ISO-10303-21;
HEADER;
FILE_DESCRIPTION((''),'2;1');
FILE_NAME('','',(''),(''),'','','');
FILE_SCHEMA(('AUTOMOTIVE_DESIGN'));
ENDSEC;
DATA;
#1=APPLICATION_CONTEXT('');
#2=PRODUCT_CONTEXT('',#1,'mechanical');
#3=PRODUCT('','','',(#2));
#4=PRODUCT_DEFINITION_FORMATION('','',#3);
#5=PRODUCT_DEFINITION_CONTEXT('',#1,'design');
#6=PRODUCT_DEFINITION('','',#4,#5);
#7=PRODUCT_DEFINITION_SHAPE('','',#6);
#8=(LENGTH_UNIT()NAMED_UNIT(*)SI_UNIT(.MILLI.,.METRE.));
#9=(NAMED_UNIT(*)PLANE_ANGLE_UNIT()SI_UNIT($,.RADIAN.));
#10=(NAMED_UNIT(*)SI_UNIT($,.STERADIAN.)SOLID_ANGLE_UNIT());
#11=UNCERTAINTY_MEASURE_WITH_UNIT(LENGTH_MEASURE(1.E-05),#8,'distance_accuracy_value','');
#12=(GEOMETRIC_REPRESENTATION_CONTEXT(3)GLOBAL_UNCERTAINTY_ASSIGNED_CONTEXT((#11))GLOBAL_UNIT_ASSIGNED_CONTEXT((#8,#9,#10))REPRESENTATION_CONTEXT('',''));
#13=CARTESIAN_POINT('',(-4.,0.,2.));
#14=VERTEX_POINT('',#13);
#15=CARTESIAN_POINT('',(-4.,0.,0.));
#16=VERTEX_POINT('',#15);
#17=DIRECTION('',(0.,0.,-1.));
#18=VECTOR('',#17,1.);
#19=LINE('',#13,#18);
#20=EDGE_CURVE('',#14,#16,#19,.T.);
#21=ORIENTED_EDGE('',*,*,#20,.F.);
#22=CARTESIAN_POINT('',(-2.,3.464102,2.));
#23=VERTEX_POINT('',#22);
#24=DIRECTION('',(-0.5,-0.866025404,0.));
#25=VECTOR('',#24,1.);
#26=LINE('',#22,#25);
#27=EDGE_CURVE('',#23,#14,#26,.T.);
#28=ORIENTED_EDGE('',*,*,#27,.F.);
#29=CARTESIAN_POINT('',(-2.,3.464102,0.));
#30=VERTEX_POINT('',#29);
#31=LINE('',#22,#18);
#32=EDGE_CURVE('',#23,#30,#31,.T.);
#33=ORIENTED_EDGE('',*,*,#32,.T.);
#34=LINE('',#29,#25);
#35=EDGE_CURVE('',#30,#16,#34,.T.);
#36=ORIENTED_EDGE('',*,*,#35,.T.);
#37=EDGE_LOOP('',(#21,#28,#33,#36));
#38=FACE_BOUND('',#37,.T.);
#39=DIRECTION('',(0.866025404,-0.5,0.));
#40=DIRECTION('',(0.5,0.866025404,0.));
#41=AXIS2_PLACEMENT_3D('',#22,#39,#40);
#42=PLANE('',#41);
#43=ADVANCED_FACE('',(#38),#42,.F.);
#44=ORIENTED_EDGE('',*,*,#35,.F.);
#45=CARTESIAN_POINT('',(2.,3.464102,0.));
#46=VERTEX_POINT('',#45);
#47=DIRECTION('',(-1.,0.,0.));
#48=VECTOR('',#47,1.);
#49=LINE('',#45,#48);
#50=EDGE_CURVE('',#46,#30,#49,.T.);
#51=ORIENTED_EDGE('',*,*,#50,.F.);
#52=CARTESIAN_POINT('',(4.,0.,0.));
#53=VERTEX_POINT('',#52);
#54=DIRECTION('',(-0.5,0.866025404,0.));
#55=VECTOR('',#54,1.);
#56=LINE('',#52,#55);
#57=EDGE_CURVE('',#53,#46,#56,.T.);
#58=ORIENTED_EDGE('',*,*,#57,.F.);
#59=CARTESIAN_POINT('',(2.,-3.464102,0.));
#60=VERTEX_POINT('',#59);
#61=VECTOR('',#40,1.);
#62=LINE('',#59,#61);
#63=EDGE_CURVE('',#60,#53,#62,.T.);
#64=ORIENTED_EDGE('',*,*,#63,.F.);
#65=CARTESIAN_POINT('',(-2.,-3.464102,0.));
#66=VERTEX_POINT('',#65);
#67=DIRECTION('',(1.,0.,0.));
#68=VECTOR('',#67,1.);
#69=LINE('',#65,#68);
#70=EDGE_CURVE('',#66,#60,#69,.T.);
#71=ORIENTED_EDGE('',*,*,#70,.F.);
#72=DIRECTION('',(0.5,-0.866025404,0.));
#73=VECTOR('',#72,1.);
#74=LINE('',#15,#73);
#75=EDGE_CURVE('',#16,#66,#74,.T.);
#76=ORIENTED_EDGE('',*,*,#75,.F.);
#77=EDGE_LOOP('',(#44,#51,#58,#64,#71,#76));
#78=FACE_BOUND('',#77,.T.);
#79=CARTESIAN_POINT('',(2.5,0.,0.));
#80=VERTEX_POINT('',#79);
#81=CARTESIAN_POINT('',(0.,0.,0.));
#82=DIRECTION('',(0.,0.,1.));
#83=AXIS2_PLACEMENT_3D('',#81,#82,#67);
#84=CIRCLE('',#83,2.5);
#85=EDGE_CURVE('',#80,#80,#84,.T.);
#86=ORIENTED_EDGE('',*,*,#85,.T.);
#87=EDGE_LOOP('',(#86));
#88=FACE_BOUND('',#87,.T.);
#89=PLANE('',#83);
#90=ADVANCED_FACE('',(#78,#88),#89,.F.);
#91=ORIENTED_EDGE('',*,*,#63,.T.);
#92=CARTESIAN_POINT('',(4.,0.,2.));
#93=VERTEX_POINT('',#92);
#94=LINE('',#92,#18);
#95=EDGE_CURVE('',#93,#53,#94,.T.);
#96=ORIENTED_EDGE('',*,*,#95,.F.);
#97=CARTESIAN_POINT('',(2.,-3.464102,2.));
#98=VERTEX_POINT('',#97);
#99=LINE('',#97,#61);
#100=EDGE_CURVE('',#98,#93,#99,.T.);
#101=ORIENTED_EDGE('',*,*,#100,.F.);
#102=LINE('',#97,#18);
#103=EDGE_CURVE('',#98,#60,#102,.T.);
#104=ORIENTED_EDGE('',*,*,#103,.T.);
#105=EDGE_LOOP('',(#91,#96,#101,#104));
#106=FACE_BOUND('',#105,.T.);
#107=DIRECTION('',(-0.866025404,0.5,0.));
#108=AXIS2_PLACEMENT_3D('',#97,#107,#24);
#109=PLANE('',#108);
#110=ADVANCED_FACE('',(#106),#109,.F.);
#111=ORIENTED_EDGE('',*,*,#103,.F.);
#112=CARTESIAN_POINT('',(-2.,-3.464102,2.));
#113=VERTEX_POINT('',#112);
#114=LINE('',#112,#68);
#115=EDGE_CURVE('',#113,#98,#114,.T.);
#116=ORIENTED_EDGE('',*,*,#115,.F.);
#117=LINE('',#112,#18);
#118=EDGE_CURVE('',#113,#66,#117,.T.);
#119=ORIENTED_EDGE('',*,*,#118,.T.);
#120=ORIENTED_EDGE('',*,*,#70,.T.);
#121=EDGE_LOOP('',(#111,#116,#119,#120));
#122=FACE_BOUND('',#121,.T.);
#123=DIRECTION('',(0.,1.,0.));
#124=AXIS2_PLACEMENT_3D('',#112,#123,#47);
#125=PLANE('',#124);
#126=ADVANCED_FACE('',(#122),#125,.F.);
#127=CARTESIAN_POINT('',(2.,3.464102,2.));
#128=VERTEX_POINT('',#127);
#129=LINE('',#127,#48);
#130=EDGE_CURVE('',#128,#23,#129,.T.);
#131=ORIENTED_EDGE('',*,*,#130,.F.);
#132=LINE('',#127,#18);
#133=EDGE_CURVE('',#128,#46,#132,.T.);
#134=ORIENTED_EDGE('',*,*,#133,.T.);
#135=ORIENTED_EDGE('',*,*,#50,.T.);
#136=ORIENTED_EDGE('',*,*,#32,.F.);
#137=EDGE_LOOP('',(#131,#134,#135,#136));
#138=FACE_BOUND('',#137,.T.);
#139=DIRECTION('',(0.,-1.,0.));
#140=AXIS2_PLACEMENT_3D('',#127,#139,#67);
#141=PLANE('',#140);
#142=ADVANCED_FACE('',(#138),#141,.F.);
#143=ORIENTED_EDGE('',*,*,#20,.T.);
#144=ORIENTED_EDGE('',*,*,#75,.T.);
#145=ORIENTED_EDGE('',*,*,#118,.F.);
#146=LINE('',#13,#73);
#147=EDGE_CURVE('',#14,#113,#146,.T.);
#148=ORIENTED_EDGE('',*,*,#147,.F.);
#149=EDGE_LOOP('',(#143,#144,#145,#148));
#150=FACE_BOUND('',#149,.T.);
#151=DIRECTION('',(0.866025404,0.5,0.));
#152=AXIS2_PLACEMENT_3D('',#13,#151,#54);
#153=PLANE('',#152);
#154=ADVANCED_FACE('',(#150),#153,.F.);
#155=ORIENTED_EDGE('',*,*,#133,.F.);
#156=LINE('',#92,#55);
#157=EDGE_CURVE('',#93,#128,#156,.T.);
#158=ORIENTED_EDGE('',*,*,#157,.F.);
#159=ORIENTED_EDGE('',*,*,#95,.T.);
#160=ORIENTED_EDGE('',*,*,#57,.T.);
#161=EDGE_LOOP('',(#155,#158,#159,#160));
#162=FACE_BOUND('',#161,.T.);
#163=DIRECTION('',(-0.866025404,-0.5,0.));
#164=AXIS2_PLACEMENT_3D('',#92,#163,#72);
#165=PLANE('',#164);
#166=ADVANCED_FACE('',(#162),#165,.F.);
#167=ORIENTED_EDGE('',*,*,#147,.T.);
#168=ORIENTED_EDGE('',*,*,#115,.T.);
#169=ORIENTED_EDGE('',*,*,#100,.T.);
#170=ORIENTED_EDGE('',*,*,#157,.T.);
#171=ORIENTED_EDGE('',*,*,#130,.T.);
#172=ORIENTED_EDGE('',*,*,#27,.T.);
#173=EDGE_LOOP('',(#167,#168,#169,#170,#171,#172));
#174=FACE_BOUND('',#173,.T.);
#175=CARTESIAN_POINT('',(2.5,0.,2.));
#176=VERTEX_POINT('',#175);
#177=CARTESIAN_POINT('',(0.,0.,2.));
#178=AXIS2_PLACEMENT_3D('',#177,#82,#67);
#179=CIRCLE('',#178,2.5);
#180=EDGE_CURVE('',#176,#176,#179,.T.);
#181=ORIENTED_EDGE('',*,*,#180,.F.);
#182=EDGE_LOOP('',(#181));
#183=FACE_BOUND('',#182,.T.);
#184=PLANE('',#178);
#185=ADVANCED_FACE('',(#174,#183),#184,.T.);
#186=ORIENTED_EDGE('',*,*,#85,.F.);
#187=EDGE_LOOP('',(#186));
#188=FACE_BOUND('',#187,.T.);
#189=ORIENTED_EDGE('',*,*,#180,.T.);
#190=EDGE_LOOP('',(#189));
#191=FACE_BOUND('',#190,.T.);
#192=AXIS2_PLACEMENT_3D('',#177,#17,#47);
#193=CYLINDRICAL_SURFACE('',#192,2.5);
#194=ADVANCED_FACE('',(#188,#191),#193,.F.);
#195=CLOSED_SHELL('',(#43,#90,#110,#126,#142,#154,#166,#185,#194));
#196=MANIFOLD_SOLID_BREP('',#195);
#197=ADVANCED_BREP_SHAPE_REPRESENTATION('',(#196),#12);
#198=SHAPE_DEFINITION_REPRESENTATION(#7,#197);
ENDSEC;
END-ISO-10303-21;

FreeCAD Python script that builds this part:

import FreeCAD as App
import Part
import Sketcher
from FreeCAD import Vector
Q = App.Units.Quantity

doc = App.newDocument("Part")
body = doc.addObject("PartDesign::Body", "Body")

# Sketch on XY plane
sketch1 = body.newObject("Sketcher::SketchObject", "Sketch")
sketch1.AttachmentSupport = (doc.getObject("XY_Plane"), [""])
sketch1.MapMode = "FlatFace"
sketch1.addGeometry([
    Part.LineSegment(Vector(4, 0, 0), Vector(2, 3.5, 0)),  # 0
    Part.LineSegment(Vector(2, 3.5, 0), Vector(-2, 3.5, 0)),  # 1
    Part.LineSegment(Vector(-2, 3.5, 0), Vector(-4, 0, 0)),  # 2
    Part.LineSegment(Vector(-4, 0, 0), Vector(-2, -3.5, 0)),  # 3
    Part.LineSegment(Vector(-2, -3.5, 0), Vector(2, -3.5, 0)),  # 4
    Part.LineSegment(Vector(2, -3.5, 0), Vector(4, 0, 0)),  # 5
    Part.Circle(Vector(0, 0, 0), Vector(0, 0, 1), 2.5),  # 6
], False)
sketch1.addConstraint([
    Sketcher.Constraint("Coincident", 0, 2, 1, 1),
    Sketcher.Constraint("Coincident", 1, 2, 2, 1),
    Sketcher.Constraint("Coincident", 2, 2, 3, 1),
    Sketcher.Constraint("Coincident", 3, 2, 4, 1),
    Sketcher.Constraint("Coincident", 4, 2, 5, 1),
    Sketcher.Constraint("Coincident", 5, 2, 0, 1),
    Sketcher.Constraint("Horizontal", 1),
    Sketcher.Constraint("Horizontal", 4),
    Sketcher.Constraint("Coincident", 6, 3, -1, 1),
    Sketcher.Constraint("Symmetric", 0, 2, 3, 2, -1, 1),
    Sketcher.Constraint("Symmetric", 2, 2, 5, 2, -1, 1),
    Sketcher.Constraint("PointOnObject", 2, 2, -1),
    Sketcher.Constraint("Parallel", 2, 5),
    Sketcher.Constraint("Vertical", 1, 2, 3, 2),
    Sketcher.Constraint("Diameter", 6, Q("5 mm")),
    Sketcher.Constraint("DistanceX", 1, 2, 1, 1, Q("4 mm")),
    Sketcher.Constraint("Angle", 0, Q("120 deg")),
    Sketcher.Constraint("Distance", 0, Q("4 mm")),
])
pad1 = body.newObject("PartDesign::Pad", "Pad")
pad1.Profile = sketch1
pad1.Length = 2

doc.recompute()
